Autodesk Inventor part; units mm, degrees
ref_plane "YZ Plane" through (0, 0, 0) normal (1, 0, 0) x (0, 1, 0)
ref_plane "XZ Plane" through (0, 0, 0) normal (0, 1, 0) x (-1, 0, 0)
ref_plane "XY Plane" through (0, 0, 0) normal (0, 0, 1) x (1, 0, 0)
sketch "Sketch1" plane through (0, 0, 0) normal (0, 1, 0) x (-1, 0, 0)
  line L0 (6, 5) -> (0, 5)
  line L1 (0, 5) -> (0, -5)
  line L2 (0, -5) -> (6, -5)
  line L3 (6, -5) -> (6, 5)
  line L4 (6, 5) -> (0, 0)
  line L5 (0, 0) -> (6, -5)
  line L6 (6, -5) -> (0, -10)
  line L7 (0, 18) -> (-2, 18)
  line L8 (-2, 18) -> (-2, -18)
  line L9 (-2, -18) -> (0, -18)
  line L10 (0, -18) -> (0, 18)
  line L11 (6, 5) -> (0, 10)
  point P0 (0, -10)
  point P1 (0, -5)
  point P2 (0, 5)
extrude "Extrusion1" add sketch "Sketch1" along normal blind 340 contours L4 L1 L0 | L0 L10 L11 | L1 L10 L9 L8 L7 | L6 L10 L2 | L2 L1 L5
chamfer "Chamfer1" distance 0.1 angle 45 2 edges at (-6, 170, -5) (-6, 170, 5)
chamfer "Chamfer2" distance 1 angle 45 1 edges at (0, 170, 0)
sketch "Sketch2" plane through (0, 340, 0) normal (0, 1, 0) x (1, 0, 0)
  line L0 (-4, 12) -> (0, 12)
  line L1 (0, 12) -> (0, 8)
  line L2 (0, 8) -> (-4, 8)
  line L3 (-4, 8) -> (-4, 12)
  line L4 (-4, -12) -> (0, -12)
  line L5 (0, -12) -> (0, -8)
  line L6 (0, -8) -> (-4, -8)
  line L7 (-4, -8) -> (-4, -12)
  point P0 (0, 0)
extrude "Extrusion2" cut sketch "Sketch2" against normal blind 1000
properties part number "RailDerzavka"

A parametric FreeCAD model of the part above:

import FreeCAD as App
import Part
import Sketcher

V = App.Vector
Q = App.Units.Quantity


def edges_at(feature, points):
    """Names of the edges that pass closest to the given points."""
    edges = feature.Shape.Edges
    near = lambda p: min(range(len(edges)), key=lambda i: edges[i].distToShape(Part.Vertex(*p))[0])
    return sorted({f"Edge{near(p) + 1}" for p in points})

doc = App.newDocument("Part")
body = doc.addObject("PartDesign::Body", "Body")

# Sketch on XZ plane
sketch1 = body.newObject("Sketcher::SketchObject", "Sketch")
sketch1.AttachmentSupport = (doc.getObject("XZ_Plane"), [""])
sketch1.MapMode = "FlatFace"
sketch1.addGeometry(Part.LineSegment(V(0, 0, 0), V(-6, 5, 0)), False)
sketch1.addGeometry(Part.LineSegment(V(-6, 5, 0), V(0, 10, 0)), False)
sketch1.addGeometry(Part.LineSegment(V(0, 10, 0), V(0, 18, 0)), False)
sketch1.addGeometry(Part.LineSegment(V(0, 18, 0), V(2, 18, 0)), False)
sketch1.addGeometry(Part.LineSegment(V(2, 18, 0), V(2, -18, 0)), False)
sketch1.addGeometry(Part.LineSegment(V(2, -18, 0), V(0, -18, 0)), False)
sketch1.addGeometry(Part.LineSegment(V(0, -18, 0), V(0, -10, 0)), False)
sketch1.addGeometry(Part.LineSegment(V(0, -10, 0), V(-6, -5, 0)), False)
sketch1.addGeometry(Part.LineSegment(V(-6, -5, 0), V(0, 0, 0)), False)
sketch1.addConstraint(Sketcher.Constraint("Coincident", 0, 2, 1, 1))
sketch1.addConstraint(Sketcher.Constraint("Coincident", 1, 2, 2, 1))
sketch1.addConstraint(Sketcher.Constraint("Coincident", 2, 2, 3, 1))
sketch1.addConstraint(Sketcher.Constraint("Coincident", 3, 2, 4, 1))
sketch1.addConstraint(Sketcher.Constraint("Coincident", 4, 2, 5, 1))
sketch1.addConstraint(Sketcher.Constraint("Coincident", 5, 2, 6, 1))
sketch1.addConstraint(Sketcher.Constraint("Coincident", 6, 2, 7, 1))
sketch1.addConstraint(Sketcher.Constraint("Coincident", 7, 2, 8, 1))
sketch1.addConstraint(Sketcher.Constraint("Coincident", 8, 2, 0, 1))
sketch1.addConstraint(Sketcher.Constraint("Vertical", 2))
sketch1.addConstraint(Sketcher.Constraint("Horizontal", 3))
sketch1.addConstraint(Sketcher.Constraint("Vertical", 4))
sketch1.addConstraint(Sketcher.Constraint("Horizontal", 5))
sketch1.addConstraint(Sketcher.Constraint("Vertical", 6))
sketch1.addConstraint(Sketcher.Constraint("Coincident", 8, 2, -1, 1))
sketch1.addConstraint(Sketcher.Constraint("Symmetric", 2, 2, 5, 2, -1, 1))
sketch1.addConstraint(Sketcher.Constraint("Symmetric", 1, 2, 6, 2, -1))
sketch1.addConstraint(Sketcher.Constraint("Symmetric", 0, 2, 7, 2, -1))
sketch1.addConstraint(Sketcher.Constraint("Parallel", 0, 7))
sketch1.addConstraint(Sketcher.Constraint("DistanceX", 3, 1, 3, 2, Q("2 mm")))
sketch1.addConstraint(Sketcher.Constraint("DistanceY", 2, 1, 2, 2, Q("8 mm")))
sketch1.addConstraint(Sketcher.Constraint("DistanceY", 4, 2, 4, 1, Q("36 mm")))
sketch1.addConstraint(Sketcher.Constraint("DistanceX", 0, 2, -1, 1, Q("6 mm")))
pad1 = body.newObject("PartDesign::Pad", "Pad")
pad1.Profile = sketch1
pad1.Length = 340
pad1.Reversed = True
doc.recompute()

chamfer = body.newObject("PartDesign::Chamfer", "Chamfer")
chamfer.Base = (pad1, edges_at(pad1, [(-6, 170, -5), (-6, 170, 5)]))
chamfer.Size = 0.1
doc.recompute()

chamfer2 = body.newObject("PartDesign::Chamfer", "Chamfer001")
chamfer2.Base = (chamfer, edges_at(chamfer, [(0, 170, 0)]))
chamfer2.Size = 1

# Sketch on XZ plane
sketch2 = body.newObject("Sketcher::SketchObject", "Sketch001")
sketch2.AttachmentSupport = (doc.getObject("XZ_Plane"), [""])
sketch2.MapMode = "FlatFace"
sketch2.AttachmentOffset = App.Placement(V(0, 0, -340), App.Rotation())
sketch2.addGeometry(Part.LineSegment(V(0, -12, 0), V(-4, -12, 0)), False)
sketch2.addGeometry(Part.LineSegment(V(-4, -12, 0), V(-4, -8, 0)), False)
sketch2.addGeometry(Part.LineSegment(V(-4, -8, 0), V(0, -8, 0)), False)
sketch2.addGeometry(Part.LineSegment(V(0, -8, 0), V(0, -12, 0)), False)
sketch2.addGeometry(Part.LineSegment(V(-4, 8, 0), V(-4, 12, 0)), False)
sketch2.addGeometry(Part.LineSegment(V(-4, 12, 0), V(0, 12, 0)), False)
sketch2.addGeometry(Part.LineSegment(V(0, 12, 0), V(0, 8, 0)), False)
sketch2.addGeometry(Part.LineSegment(V(0, 8, 0), V(-4, 8, 0)), False)
sketch2.addConstraint(Sketcher.Constraint("Coincident", 0, 2, 1, 1))
sketch2.addConstraint(Sketcher.Constraint("Coincident", 1, 2, 2, 1))
sketch2.addConstraint(Sketcher.Constraint("Coincident", 2, 2, 3, 1))
sketch2.addConstraint(Sketcher.Constraint("Coincident", 3, 2, 0, 1))
sketch2.addConstraint(Sketcher.Constraint("Coincident", 4, 2, 5, 1))
sketch2.addConstraint(Sketcher.Constraint("Coincident", 5, 2, 6, 1))
sketch2.addConstraint(Sketcher.Constraint("Coincident", 6, 2, 7, 1))
sketch2.addConstraint(Sketcher.Constraint("Coincident", 7, 2, 4, 1))
sketch2.addConstraint(Sketcher.Constraint("Horizontal", 0))
sketch2.addConstraint(Sketcher.Constraint("Vertical", 1))
sketch2.addConstraint(Sketcher.Constraint("Horizontal", 2))
sketch2.addConstraint(Sketcher.Constraint("Vertical", 3))
sketch2.addConstraint(Sketcher.Constraint("Vertical", 4))
sketch2.addConstraint(Sketcher.Constraint("Horizontal", 5))
sketch2.addConstraint(Sketcher.Constraint("Vertical", 6))
sketch2.addConstraint(Sketcher.Constraint("Horizontal", 7))
sketch2.addConstraint(Sketcher.Constraint("Symmetric", 3, 2, 5, 2, -1, 1))
sketch2.addConstraint(Sketcher.Constraint("Symmetric", 2, 2, 6, 2, -1))
sketch2.addConstraint(Sketcher.Constraint("Vertical", 1, 2, 4, 2))
sketch2.addConstraint(Sketcher.Constraint("Equal", 7, 1))
sketch2.addConstraint(Sketcher.Constraint("DistanceX", 0, 2, 0, 1, Q("4 mm")))
sketch2.addConstraint(Sketcher.Constraint("DistanceY", 0, 2, -1, 1, Q("12 mm")))
pocket1 = body.newObject("PartDesign::Pocket", "Pocket")
pocket1.Profile = sketch2
pocket1.Length = 1000
pocket1.Reversed = True

doc.recompute()
